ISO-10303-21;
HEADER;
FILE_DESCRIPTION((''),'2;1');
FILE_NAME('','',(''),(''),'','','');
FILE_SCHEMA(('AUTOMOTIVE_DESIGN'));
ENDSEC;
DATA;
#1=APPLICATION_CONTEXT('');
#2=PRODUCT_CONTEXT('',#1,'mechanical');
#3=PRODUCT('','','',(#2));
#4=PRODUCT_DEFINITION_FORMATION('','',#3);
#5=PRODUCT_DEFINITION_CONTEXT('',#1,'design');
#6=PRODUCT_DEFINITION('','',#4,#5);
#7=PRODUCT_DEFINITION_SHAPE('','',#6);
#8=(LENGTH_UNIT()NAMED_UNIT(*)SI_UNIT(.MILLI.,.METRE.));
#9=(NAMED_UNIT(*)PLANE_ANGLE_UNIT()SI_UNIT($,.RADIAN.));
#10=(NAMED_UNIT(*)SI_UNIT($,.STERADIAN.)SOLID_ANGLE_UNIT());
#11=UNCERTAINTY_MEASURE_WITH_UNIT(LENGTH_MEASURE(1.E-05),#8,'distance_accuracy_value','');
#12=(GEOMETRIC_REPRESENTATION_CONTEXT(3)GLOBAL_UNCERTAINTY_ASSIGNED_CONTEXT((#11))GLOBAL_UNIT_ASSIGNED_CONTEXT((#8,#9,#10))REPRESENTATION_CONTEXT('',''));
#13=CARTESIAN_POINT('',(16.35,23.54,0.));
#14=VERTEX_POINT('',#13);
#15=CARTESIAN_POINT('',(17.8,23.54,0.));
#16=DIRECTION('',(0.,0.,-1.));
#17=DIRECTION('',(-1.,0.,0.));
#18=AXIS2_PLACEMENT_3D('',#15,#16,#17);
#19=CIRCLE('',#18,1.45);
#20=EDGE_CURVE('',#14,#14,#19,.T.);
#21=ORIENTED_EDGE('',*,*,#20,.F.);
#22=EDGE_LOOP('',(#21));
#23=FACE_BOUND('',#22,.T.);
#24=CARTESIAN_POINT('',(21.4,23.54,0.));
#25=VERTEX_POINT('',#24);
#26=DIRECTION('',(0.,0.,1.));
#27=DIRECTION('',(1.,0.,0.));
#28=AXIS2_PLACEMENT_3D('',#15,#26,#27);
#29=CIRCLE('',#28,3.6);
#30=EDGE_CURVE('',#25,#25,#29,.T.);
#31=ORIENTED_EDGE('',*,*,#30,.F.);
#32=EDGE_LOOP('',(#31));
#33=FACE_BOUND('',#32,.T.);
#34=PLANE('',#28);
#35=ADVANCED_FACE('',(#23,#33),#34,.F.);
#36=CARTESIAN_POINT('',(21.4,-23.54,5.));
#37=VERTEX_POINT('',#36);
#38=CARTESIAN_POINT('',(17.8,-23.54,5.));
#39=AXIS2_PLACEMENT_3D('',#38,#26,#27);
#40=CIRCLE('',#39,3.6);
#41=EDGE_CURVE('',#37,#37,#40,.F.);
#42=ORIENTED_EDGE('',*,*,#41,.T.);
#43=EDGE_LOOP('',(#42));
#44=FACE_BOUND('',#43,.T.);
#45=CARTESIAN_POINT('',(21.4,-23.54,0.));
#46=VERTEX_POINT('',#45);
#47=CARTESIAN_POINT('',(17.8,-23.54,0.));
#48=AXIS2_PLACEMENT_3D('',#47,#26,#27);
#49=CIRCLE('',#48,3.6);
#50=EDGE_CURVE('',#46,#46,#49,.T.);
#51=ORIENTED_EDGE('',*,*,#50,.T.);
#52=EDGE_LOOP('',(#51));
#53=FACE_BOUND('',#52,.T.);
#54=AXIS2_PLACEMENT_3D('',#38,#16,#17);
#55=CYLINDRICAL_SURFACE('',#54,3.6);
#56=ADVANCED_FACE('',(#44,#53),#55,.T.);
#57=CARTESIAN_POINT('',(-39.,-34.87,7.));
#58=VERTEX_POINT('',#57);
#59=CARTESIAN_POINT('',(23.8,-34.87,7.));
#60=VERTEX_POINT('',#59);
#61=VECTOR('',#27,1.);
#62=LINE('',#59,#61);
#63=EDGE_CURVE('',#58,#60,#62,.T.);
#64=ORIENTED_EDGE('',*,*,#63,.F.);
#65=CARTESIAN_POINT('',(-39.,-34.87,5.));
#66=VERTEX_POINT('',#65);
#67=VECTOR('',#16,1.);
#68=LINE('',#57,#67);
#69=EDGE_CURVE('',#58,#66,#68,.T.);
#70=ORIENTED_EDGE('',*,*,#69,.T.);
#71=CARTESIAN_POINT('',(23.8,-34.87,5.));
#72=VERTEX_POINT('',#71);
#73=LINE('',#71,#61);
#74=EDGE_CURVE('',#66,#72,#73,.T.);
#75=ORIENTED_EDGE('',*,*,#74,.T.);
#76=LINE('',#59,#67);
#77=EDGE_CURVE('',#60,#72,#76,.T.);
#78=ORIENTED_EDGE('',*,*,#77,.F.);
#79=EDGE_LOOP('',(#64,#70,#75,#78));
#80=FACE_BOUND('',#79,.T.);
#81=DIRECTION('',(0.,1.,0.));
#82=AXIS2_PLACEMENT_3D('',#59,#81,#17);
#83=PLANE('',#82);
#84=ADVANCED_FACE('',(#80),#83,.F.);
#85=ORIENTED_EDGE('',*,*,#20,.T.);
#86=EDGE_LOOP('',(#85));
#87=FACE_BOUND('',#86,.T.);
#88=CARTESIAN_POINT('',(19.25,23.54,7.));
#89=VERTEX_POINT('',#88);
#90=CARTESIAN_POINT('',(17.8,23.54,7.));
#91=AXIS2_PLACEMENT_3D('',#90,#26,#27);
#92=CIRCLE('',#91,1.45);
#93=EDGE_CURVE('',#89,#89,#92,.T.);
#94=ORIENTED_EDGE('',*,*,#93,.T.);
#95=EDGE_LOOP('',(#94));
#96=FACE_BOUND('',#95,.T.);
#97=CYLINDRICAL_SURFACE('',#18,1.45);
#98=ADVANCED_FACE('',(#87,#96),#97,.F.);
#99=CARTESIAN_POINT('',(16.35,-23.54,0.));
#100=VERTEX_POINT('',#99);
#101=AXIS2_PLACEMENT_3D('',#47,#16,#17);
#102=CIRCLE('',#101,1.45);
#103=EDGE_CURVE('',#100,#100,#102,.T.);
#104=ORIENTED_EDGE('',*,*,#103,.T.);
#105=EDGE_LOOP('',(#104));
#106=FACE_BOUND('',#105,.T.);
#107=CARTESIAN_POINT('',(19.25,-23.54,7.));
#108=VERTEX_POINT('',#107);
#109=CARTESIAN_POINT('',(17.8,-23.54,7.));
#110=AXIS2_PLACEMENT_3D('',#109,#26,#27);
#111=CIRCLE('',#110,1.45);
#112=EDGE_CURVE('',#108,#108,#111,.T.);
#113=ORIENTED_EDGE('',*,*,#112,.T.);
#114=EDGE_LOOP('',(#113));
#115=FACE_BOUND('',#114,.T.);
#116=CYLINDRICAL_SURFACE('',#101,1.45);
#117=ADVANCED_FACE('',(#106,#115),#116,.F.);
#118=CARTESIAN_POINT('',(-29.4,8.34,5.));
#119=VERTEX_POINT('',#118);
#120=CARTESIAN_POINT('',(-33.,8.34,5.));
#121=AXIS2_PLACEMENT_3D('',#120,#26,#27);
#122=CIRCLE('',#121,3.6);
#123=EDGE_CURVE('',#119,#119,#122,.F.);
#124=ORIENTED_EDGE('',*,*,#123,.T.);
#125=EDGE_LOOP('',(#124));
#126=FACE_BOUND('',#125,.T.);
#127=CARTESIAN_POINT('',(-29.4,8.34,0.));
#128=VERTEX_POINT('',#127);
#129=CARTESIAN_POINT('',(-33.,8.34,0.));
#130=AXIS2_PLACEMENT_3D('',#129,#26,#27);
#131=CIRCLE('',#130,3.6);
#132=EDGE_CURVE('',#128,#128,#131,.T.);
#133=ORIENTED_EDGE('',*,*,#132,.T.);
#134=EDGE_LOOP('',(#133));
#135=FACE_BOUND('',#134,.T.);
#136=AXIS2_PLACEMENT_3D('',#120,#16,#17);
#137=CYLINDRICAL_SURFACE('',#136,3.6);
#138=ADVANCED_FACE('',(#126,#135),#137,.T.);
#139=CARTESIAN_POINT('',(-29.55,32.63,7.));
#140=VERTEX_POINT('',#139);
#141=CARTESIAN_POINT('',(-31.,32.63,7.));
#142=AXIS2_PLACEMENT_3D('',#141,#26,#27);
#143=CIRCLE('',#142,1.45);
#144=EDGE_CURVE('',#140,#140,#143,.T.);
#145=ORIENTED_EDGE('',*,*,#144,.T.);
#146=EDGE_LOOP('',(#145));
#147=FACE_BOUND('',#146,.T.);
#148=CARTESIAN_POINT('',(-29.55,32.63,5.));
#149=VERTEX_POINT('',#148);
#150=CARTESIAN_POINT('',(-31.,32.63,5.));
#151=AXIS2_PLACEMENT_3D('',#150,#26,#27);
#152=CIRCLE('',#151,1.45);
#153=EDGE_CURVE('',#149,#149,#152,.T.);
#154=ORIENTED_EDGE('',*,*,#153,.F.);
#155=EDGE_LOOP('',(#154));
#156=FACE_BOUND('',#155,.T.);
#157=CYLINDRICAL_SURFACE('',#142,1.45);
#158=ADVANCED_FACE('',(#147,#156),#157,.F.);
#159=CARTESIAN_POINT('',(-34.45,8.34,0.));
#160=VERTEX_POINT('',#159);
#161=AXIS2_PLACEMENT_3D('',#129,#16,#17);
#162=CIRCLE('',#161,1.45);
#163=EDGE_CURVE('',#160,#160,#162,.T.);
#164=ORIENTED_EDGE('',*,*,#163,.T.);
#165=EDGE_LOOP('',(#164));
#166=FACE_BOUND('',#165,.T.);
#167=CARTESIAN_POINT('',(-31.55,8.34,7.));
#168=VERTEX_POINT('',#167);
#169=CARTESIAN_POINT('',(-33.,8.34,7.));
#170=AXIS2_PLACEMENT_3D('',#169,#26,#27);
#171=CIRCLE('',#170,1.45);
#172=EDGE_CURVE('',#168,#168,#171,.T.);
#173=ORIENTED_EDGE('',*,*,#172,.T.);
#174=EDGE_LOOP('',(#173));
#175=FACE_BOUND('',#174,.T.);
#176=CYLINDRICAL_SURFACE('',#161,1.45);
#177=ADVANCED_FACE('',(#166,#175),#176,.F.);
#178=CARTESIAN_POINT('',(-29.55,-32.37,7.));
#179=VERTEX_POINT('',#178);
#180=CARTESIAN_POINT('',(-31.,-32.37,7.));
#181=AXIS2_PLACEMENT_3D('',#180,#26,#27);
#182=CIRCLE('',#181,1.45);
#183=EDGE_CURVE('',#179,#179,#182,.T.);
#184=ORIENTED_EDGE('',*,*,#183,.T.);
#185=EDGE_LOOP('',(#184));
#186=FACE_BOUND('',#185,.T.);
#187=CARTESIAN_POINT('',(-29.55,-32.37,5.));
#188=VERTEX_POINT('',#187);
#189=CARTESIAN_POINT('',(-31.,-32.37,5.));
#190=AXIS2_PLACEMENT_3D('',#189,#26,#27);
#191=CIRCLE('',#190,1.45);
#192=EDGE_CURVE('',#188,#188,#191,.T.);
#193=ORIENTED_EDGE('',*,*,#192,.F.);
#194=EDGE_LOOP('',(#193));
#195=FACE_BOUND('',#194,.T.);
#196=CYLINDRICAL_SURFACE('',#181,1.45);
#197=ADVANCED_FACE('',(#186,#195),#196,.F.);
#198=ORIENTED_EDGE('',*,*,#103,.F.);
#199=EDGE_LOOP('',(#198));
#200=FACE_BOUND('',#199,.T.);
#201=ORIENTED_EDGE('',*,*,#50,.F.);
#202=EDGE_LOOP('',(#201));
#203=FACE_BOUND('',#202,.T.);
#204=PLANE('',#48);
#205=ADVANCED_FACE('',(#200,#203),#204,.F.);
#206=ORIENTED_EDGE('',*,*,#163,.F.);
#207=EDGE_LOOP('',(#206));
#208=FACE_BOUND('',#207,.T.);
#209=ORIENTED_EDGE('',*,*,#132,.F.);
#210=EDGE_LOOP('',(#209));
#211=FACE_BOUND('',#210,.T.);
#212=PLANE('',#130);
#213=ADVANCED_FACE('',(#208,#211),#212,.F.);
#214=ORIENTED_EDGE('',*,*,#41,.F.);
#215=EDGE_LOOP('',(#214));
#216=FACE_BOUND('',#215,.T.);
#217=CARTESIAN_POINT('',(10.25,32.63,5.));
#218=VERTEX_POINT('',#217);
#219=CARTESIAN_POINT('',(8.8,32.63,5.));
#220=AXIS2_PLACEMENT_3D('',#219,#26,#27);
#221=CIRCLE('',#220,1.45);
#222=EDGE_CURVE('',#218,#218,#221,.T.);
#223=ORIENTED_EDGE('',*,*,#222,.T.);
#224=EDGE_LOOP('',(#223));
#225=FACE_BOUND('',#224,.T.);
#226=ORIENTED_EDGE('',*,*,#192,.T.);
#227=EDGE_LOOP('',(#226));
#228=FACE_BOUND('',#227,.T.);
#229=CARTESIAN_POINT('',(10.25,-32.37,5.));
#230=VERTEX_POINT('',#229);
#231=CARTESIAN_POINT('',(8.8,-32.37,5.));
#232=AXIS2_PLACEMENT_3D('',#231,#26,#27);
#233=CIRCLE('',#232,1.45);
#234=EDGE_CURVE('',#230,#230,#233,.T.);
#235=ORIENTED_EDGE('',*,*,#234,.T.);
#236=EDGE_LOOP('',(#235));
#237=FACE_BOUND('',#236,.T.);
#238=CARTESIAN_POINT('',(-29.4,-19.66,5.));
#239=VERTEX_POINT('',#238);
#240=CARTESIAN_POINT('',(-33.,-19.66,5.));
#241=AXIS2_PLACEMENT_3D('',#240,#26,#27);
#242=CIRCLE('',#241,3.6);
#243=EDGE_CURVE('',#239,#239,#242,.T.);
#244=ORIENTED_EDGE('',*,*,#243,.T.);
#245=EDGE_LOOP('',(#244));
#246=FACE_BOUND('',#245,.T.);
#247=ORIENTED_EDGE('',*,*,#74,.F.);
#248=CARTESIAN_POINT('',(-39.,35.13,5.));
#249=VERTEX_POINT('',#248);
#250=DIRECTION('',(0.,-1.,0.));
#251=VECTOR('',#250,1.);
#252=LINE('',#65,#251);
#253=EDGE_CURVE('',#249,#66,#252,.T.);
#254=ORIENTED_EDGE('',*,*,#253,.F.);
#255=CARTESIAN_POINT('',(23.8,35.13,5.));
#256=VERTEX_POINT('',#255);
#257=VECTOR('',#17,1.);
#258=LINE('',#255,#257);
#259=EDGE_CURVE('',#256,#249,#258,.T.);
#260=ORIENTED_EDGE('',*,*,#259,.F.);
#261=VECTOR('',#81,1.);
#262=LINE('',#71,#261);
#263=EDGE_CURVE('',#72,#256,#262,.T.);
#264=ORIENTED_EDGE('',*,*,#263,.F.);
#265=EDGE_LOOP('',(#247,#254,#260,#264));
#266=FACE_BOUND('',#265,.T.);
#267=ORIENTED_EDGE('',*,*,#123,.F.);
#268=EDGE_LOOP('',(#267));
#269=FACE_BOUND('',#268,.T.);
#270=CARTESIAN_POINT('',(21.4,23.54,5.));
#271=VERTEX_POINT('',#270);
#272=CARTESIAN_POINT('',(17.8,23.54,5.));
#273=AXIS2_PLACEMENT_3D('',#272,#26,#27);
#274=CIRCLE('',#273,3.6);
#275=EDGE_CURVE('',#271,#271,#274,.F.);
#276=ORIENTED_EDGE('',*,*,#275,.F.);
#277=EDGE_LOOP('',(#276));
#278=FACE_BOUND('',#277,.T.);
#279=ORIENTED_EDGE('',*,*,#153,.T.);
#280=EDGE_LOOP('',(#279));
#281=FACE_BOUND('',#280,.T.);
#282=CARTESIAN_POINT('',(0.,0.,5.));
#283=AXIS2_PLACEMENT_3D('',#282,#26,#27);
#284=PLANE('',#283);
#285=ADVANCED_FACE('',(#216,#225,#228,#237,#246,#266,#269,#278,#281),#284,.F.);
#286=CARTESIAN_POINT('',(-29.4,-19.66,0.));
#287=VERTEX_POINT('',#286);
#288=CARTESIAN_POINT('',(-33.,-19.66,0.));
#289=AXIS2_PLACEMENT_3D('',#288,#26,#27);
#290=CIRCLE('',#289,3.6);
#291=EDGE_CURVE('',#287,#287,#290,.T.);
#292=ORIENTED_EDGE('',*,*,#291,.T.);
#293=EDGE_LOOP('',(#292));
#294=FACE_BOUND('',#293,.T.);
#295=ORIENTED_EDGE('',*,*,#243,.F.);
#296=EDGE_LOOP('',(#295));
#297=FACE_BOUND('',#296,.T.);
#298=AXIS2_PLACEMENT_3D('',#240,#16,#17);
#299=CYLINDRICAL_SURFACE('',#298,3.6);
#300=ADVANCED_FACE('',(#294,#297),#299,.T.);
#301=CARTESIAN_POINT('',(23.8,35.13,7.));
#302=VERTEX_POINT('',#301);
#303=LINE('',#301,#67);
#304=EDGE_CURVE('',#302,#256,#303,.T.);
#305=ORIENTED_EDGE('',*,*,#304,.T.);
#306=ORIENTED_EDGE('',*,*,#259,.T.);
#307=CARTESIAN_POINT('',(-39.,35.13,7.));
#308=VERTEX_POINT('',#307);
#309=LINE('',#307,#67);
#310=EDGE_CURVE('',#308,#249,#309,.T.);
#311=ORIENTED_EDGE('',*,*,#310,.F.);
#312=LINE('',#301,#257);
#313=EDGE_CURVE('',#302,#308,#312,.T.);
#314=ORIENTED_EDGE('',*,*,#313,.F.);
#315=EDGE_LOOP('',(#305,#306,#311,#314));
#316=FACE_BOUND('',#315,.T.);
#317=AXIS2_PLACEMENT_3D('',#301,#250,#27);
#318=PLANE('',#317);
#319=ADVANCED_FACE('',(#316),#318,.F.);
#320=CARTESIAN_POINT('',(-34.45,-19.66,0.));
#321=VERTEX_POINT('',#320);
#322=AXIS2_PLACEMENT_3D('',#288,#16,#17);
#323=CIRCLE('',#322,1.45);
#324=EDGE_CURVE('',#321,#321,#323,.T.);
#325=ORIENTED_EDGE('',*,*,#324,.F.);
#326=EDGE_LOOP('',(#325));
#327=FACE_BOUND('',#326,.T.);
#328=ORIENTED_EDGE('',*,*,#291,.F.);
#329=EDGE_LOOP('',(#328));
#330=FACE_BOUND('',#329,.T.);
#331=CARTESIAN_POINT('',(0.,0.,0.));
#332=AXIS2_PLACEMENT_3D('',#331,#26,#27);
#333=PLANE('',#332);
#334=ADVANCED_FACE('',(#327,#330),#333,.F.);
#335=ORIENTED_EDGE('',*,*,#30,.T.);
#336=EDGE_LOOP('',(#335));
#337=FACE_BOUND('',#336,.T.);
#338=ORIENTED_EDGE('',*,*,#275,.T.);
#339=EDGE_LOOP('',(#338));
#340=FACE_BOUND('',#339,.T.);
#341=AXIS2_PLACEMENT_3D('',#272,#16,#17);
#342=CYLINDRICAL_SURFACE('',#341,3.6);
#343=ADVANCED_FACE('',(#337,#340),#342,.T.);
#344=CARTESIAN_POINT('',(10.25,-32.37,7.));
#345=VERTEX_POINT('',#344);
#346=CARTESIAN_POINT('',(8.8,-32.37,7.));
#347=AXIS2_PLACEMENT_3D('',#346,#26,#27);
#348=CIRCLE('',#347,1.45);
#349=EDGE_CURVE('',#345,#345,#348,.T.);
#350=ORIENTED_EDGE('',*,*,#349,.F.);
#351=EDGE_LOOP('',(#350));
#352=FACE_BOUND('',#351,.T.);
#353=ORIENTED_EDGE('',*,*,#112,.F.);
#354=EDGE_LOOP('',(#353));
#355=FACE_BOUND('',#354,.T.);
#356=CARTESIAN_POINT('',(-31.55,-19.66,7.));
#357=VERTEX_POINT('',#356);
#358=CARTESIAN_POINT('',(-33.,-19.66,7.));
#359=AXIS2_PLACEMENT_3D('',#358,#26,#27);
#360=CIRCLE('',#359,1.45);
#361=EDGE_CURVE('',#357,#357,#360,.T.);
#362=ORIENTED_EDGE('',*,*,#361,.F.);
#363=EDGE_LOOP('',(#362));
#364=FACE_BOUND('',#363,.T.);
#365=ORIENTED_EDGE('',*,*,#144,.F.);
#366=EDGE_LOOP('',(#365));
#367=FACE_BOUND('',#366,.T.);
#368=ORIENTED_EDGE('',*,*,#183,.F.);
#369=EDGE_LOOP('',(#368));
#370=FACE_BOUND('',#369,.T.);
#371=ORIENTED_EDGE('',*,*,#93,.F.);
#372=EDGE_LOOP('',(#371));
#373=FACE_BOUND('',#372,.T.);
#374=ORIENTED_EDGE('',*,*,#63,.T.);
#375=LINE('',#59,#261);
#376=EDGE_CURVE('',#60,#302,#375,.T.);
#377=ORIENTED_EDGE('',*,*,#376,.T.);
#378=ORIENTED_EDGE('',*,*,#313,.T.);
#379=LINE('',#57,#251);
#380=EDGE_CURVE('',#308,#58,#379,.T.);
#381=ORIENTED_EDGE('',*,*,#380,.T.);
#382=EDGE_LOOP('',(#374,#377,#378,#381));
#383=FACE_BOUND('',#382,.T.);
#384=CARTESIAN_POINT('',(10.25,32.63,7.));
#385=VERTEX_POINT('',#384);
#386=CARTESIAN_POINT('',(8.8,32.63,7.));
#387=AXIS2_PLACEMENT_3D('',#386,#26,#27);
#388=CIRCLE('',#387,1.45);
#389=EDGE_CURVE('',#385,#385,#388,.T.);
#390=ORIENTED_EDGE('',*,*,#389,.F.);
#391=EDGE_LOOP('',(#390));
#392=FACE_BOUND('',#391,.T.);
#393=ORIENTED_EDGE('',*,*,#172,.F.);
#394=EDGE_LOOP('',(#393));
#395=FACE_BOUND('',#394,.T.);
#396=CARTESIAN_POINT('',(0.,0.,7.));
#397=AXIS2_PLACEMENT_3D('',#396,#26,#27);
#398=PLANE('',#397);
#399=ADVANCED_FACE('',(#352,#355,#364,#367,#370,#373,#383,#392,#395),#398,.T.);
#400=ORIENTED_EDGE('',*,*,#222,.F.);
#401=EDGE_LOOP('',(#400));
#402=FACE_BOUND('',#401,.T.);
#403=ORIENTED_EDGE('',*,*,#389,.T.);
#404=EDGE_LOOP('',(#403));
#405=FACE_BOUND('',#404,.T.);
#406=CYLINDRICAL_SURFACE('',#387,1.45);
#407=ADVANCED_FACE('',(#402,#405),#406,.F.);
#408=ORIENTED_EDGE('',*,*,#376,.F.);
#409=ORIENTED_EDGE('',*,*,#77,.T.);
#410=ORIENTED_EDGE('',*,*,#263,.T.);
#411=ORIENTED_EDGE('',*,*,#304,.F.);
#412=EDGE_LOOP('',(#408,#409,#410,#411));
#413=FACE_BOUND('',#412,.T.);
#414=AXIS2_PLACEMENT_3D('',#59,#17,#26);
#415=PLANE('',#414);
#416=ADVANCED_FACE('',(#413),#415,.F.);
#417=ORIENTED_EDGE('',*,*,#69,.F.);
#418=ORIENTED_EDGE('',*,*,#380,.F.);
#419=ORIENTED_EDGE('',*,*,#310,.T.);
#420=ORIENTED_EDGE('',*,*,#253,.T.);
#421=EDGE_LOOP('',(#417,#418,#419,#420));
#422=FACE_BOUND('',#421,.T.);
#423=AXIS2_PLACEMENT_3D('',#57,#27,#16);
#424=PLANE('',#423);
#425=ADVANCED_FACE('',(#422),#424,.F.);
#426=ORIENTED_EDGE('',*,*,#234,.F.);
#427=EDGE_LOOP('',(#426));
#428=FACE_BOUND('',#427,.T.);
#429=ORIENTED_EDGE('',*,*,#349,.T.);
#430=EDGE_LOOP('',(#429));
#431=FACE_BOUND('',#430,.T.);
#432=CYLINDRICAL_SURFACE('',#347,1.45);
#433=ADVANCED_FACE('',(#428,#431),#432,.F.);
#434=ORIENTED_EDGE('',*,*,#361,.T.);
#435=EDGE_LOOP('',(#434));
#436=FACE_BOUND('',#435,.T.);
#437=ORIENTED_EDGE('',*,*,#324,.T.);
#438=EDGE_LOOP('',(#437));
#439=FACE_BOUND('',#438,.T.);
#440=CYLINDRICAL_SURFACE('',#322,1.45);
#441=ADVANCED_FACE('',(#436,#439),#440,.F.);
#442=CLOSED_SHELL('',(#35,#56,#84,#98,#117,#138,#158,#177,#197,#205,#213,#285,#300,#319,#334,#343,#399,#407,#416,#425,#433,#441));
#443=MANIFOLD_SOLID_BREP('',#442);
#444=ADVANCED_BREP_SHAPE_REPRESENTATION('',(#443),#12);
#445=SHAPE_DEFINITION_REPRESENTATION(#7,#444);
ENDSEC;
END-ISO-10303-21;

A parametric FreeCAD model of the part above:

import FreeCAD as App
import Part
import Sketcher
from FreeCAD import Vector


def add_polygon(sketch, points):
    """Adds a closed chain of lines whose ends are joined by coincident constraints."""
    first, n = sketch.GeometryCount, len(points)
    for a, b in zip(points, points[1:] + points[:1]):
        sketch.addGeometry(Part.LineSegment(App.Vector(*a, 0), App.Vector(*b, 0)), False)
    for i in range(n):
        sketch.addConstraint(Sketcher.Constraint("Coincident", first + i, 2, first + (i + 1) % n, 1))

doc = App.newDocument("Part")
body = doc.addObject("PartDesign::Body", "Body")
body.AllowCompound = True

sketch1 = body.newObject("Sketcher::SketchObject", "Sketch")
sketch1.AttachmentSupport = (doc.getObject("XY_Plane"), [""])
sketch1.MapMode = "FlatFace"
sketch1.addGeometry([
    Part.Circle(Vector(-33, -19.7, 0), Vector(0, 0, 1), 3.6),
    Part.Circle(Vector(-33, 8.3, 0), Vector(0, 0, 1), 3.6),
    Part.Circle(Vector(17.8, -23.5, 0), Vector(0, 0, 1), 3.6),
    Part.Circle(Vector(17.8, 23.5, 0), Vector(0, 0, 1), 3.6),
], False)
sketch1.addConstraint([
    Sketcher.Constraint("Equal", 0, 1),
    Sketcher.Constraint("Equal", 1, 2),
    Sketcher.Constraint("Equal", 2, 3),
    Sketcher.Constraint("Symmetric", 2, 3, 3, 3, -1),
    Sketcher.Constraint("Vertical", 0, 3, 1, 3),
    Sketcher.Constraint("Diameter", 0, 7.2),
    Sketcher.Constraint("DistanceX", 0, 3, -1, 1, 33.0),
    Sketcher.Constraint("DistanceY", 0, 3, 1, 3, 28.0),
    Sketcher.Constraint("DistanceX", -1, 1, 2, 3, 17.8),
    Sketcher.Constraint("DistanceY", 1, 3, 3, 3, 15.2),
    Sketcher.Constraint("DistanceY", 0, 3, -1, 1, 19.66),
])
pad1 = body.newObject("PartDesign::Pad", "Pad")
pad1.Profile = sketch1
pad1.Length = 5

sketch2 = body.newObject("Sketcher::SketchObject", "Sketch001")
sketch2.AttachmentSupport = (doc.getObject("XY_Plane"), [""])
sketch2.MapMode = "FlatFace"
sketch2.AttachmentOffset = App.Placement(Vector(0, 0, 5), App.Rotation())
add_polygon(sketch2, [(-39, 35), (-39, -35), (24, -35), (24, 35)])
sketch2.addConstraint([
    Sketcher.Constraint("Vertical", 0),
    Sketcher.Constraint("Horizontal", 1),
    Sketcher.Constraint("Vertical", 2),
    Sketcher.Constraint("Horizontal", 3),
    Sketcher.Constraint("DistanceY", 0, 2, 0, 1, 70.0),
    Sketcher.Constraint("DistanceX", 1, 1, 1, 2, 62.8),
    Sketcher.Constraint("DistanceX", 0, 2, -1, 1, 39.0),
    Sketcher.Constraint("DistanceY", 0, 2, -1, 1, 34.87),
])
pad2 = body.newObject("PartDesign::Pad", "Pad001")
pad2.Profile = sketch2
pad2.Length = 2

sketch3 = body.newObject("Sketcher::SketchObject", "Sketch002")
sketch3.AttachmentSupport = (doc.getObject("XY_Plane"), [""])
sketch3.MapMode = "FlatFace"
sketch3.AttachmentOffset = App.Placement(Vector(0, 0, 7), App.Rotation())
sketch3.addGeometry([
    Part.Circle(Vector(8.8, -32.4, 0), Vector(0, 0, 1), 1.4),
    Part.Circle(Vector(-31, -32.4, 0), Vector(0, 0, 1), 1.4),
    Part.Circle(Vector(-31, 32.6, 0), Vector(0, 0, 1), 1.4),
    Part.Circle(Vector(8.8, 32.6, 0), Vector(0, 0, 1), 1.4),
], False)
sketch3.addConstraint([
    Sketcher.Constraint("Equal", 0, 1),
    Sketcher.Constraint("Equal", 1, 2),
    Sketcher.Constraint("Equal", 2, 3),
    Sketcher.Constraint("Horizontal", 0, 3, 1, 3),
    Sketcher.Constraint("Horizontal", 2, 3, 3, 3),
    Sketcher.Constraint("Vertical", 1, 3, 2, 3),
    Sketcher.Constraint("Vertical", 0, 3, 3, 3),
    Sketcher.Constraint("Diameter", 0, 2.9),
    Sketcher.Constraint("DistanceX", 1, 3, -1, 1, 31.0),
    Sketcher.Constraint("DistanceY", 1, 3, 2, 3, 65.0),
    Sketcher.Constraint("DistanceX", -1, 1, 0, 3, 8.8),
    Sketcher.Constraint("DistanceY", 0, 3, -1, 1, 32.37),
])
doc.recompute()
hole = body.newObject("PartDesign::Hole", "Hole")
hole.Profile = sketch3
hole.ThreadType = "None"
hole.Diameter = 2.9
hole.DepthType = "Dimension"
hole.Depth = 9.128752
hole.DrillPoint = "Angled"
hole.DrillPointAngle = 118

sketch4 = body.newObject("Sketcher::SketchObject", "Sketch003")
sketch4.AttachmentSupport = (doc.getObject("XY_Plane"), [""])
sketch4.MapMode = "FlatFace"
sketch4.addGeometry([
    Part.Circle(Vector(17.8, 23.5, 0), Vector(0, 0, 1), 1.4),
    Part.Circle(Vector(-33, 8.3, 0), Vector(0, 0, 1), 1.4),
    Part.Circle(Vector(-33, -19.7, 0), Vector(0, 0, 1), 1.4),
    Part.Circle(Vector(17.8, -23.5, 0), Vector(0, 0, 1), 1.4),
], False)
sketch4.addConstraint([
    Sketcher.Constraint("Equal", 0, 1),
    Sketcher.Constraint("Equal", 1, 2),
    Sketcher.Constraint("Equal", 2, 3),
    Sketcher.Constraint("Symmetric", 0, 3, 3, 3, -1),
    Sketcher.Constraint("Vertical", 1, 3, 2, 3),
    Sketcher.Constraint("Diameter", 0, 2.9),
    Sketcher.Constraint("DistanceX", 1, 3, -1, 1, 33.0),
    Sketcher.Constraint("DistanceY", 2, 3, 1, 3, 28.0),
    Sketcher.Constraint("DistanceX", -1, 1, 0, 3, 17.8),
    Sketcher.Constraint("DistanceY", 1, 3, 0, 3, 15.2),
    Sketcher.Constraint("DistanceY", -1, 1, 0, 3, 23.54),
])
doc.recompute()
hole2 = body.newObject("PartDesign::Hole", "Hole001")
hole2.Profile = sketch4
hole2.ThreadType = "None"
hole2.Diameter = 2.9
hole2.DepthType = "Dimension"
hole2.Depth = 9.128752
hole2.DrillPoint = "Angled"
hole2.DrillPointAngle = 118
hole2.Reversed = True

doc.recompute()
